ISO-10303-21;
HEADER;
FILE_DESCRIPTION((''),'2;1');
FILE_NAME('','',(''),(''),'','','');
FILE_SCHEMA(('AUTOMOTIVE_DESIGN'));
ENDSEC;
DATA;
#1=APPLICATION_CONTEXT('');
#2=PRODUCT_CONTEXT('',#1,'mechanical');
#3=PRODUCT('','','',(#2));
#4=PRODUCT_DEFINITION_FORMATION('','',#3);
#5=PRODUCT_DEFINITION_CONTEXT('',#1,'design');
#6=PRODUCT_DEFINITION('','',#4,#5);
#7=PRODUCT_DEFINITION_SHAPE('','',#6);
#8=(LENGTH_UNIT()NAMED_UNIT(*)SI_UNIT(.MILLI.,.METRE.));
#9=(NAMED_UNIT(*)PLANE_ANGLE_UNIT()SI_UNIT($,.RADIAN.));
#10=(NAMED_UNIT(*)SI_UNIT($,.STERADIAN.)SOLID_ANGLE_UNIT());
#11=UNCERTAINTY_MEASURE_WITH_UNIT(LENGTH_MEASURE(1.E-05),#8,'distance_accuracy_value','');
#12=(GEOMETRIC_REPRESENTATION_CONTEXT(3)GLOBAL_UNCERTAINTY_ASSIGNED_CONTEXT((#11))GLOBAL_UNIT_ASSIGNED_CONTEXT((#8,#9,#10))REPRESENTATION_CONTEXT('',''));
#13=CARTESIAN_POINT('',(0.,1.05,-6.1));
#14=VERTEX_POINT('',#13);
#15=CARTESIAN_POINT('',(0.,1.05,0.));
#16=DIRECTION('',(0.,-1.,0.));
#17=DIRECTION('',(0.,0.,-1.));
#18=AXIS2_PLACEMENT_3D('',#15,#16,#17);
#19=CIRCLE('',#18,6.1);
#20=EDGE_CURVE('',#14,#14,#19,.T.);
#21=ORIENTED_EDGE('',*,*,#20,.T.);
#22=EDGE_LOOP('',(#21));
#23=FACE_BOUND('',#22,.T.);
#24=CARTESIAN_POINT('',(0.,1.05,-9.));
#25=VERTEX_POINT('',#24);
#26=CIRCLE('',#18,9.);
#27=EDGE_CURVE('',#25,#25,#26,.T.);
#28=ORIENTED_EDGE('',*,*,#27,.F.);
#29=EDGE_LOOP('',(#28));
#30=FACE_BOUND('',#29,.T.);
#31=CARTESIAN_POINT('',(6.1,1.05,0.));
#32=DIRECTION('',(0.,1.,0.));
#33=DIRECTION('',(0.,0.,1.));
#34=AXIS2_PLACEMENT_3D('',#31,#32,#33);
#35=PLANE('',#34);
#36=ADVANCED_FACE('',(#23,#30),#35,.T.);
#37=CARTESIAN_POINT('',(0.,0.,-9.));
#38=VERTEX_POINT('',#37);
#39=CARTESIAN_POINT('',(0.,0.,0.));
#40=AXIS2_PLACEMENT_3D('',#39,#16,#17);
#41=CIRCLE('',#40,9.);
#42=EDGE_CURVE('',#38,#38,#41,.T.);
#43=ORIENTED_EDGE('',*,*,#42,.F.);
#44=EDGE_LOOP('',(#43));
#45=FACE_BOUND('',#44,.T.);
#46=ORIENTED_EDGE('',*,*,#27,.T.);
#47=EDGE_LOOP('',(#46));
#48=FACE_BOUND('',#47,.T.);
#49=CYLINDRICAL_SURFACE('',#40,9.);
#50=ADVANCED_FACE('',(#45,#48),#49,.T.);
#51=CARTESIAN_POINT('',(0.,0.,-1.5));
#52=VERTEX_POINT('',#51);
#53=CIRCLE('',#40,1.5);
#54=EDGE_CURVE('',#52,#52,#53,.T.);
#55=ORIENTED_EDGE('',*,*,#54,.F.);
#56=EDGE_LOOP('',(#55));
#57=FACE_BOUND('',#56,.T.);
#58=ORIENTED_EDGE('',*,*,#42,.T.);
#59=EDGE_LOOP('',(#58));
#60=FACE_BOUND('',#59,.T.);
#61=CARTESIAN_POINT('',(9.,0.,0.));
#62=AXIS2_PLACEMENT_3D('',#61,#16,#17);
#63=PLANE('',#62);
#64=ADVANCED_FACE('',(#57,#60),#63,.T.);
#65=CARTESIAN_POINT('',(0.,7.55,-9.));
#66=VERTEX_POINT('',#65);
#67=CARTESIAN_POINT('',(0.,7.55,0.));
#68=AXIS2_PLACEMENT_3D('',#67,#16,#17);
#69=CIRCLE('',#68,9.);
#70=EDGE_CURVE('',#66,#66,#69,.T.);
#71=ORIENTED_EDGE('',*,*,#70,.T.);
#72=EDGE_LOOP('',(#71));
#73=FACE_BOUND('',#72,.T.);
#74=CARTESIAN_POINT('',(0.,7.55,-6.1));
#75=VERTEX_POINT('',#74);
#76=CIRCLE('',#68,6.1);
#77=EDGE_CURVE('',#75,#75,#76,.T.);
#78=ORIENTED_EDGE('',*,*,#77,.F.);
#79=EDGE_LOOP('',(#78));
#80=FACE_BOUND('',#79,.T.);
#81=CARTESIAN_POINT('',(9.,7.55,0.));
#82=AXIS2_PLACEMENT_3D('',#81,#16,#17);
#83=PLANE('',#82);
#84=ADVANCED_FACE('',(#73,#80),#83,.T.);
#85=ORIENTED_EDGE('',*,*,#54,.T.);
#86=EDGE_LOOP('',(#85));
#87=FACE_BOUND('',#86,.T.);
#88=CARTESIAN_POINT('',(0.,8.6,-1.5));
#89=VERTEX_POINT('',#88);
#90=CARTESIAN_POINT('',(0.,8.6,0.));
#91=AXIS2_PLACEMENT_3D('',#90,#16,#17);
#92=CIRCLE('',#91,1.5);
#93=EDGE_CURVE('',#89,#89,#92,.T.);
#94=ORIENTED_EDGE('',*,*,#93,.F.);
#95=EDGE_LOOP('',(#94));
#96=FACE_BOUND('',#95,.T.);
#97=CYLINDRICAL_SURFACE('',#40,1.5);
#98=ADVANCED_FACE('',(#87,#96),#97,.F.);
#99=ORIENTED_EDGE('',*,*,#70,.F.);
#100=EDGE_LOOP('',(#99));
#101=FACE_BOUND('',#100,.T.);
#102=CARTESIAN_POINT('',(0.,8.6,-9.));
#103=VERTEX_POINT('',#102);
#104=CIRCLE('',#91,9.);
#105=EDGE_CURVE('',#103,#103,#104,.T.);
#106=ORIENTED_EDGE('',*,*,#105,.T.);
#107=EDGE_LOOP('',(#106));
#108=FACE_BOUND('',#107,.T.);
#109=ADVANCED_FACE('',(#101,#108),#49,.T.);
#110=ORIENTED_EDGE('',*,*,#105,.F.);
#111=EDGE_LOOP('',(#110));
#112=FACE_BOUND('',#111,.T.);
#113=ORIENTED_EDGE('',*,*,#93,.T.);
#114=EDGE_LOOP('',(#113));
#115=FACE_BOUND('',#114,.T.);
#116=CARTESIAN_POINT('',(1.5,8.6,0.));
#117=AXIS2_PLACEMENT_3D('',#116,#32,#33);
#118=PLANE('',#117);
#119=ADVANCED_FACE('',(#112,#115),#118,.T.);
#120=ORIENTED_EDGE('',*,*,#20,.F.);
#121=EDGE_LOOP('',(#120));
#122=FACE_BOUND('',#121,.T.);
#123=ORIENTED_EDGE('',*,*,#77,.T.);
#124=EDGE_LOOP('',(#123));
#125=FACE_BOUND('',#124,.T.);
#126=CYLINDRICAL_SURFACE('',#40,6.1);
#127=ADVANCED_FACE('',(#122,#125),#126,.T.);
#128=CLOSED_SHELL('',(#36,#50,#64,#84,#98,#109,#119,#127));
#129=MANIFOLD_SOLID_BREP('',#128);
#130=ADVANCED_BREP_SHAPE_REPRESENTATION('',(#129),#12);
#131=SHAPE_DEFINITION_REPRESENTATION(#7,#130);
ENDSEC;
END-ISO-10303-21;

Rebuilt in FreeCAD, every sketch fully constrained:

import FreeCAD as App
import Part
import Sketcher
from FreeCAD import Vector
Q = App.Units.Quantity

doc = App.newDocument("Part")
body = doc.addObject("PartDesign::Body", "Body")

# Sketch on XY plane
sketch1 = body.newObject("Sketcher::SketchObject", "Sketch")
sketch1.AttachmentSupport = (doc.getObject("XY_Plane"), [""])
sketch1.MapMode = "FlatFace"
sketch1.addGeometry([
    Part.LineSegment(Vector(9, 8.6, 0), Vector(1.5, 8.6, 0)),  # 0
    Part.LineSegment(Vector(1.5, 8.6, 0), Vector(1.5, 0, 0)),  # 1
    Part.LineSegment(Vector(1.5, 0, 0), Vector(9, 0, 0)),  # 2
    Part.LineSegment(Vector(9, 0, 0), Vector(9, 1.05, 0)),  # 3
    Part.LineSegment(Vector(9, 1.05, 0), Vector(6.1, 1.05, 0)),  # 4
    Part.LineSegment(Vector(6.1, 1.05, 0), Vector(6.1, 7.55, 0)),  # 5
    Part.LineSegment(Vector(6.1, 7.55, 0), Vector(9, 7.55, 0)),  # 6
    Part.LineSegment(Vector(9, 7.55, 0), Vector(9, 8.6, 0)),  # 7
], False)
sketch1.addConstraint([
    Sketcher.Constraint("Coincident", 0, 2, 1, 1),
    Sketcher.Constraint("Coincident", 1, 2, 2, 1),
    Sketcher.Constraint("Coincident", 2, 2, 3, 1),
    Sketcher.Constraint("Coincident", 3, 2, 4, 1),
    Sketcher.Constraint("Coincident", 4, 2, 5, 1),
    Sketcher.Constraint("Coincident", 5, 2, 6, 1),
    Sketcher.Constraint("Coincident", 6, 2, 7, 1),
    Sketcher.Constraint("Coincident", 7, 2, 0, 1),
    Sketcher.Constraint("Horizontal", 0),
    Sketcher.Constraint("Vertical", 1),
    Sketcher.Constraint("Horizontal", 2),
    Sketcher.Constraint("Vertical", 3),
    Sketcher.Constraint("Horizontal", 4),
    Sketcher.Constraint("Vertical", 5),
    Sketcher.Constraint("Horizontal", 6),
    Sketcher.Constraint("Vertical", 7),
    Sketcher.Constraint("PointOnObject", 1, 2, -1),
    Sketcher.Constraint("Vertical", 3, 2, 6, 2),
    Sketcher.Constraint("Equal", 3, 7),
    Sketcher.Constraint("DistanceX", 0, 2, 0, 1, Q("7.5 mm")),
    Sketcher.Constraint("DistanceX", 4, 2, 4, 1, Q("2.9 mm")),
    Sketcher.Constraint("DistanceY", 1, 2, 1, 1, Q("8.6 mm")),
    Sketcher.Constraint("DistanceY", 5, 1, 5, 2, Q("6.5 mm")),
    Sketcher.Constraint("DistanceX", -1, 1, 2, 2, Q("9 mm")),
])
revolution = body.newObject("PartDesign::Revolution", "Revolution")
revolution.Profile = sketch1
revolution.ReferenceAxis = (sketch1, ["V_Axis"])
revolution.Angle = 360

doc.recompute()
